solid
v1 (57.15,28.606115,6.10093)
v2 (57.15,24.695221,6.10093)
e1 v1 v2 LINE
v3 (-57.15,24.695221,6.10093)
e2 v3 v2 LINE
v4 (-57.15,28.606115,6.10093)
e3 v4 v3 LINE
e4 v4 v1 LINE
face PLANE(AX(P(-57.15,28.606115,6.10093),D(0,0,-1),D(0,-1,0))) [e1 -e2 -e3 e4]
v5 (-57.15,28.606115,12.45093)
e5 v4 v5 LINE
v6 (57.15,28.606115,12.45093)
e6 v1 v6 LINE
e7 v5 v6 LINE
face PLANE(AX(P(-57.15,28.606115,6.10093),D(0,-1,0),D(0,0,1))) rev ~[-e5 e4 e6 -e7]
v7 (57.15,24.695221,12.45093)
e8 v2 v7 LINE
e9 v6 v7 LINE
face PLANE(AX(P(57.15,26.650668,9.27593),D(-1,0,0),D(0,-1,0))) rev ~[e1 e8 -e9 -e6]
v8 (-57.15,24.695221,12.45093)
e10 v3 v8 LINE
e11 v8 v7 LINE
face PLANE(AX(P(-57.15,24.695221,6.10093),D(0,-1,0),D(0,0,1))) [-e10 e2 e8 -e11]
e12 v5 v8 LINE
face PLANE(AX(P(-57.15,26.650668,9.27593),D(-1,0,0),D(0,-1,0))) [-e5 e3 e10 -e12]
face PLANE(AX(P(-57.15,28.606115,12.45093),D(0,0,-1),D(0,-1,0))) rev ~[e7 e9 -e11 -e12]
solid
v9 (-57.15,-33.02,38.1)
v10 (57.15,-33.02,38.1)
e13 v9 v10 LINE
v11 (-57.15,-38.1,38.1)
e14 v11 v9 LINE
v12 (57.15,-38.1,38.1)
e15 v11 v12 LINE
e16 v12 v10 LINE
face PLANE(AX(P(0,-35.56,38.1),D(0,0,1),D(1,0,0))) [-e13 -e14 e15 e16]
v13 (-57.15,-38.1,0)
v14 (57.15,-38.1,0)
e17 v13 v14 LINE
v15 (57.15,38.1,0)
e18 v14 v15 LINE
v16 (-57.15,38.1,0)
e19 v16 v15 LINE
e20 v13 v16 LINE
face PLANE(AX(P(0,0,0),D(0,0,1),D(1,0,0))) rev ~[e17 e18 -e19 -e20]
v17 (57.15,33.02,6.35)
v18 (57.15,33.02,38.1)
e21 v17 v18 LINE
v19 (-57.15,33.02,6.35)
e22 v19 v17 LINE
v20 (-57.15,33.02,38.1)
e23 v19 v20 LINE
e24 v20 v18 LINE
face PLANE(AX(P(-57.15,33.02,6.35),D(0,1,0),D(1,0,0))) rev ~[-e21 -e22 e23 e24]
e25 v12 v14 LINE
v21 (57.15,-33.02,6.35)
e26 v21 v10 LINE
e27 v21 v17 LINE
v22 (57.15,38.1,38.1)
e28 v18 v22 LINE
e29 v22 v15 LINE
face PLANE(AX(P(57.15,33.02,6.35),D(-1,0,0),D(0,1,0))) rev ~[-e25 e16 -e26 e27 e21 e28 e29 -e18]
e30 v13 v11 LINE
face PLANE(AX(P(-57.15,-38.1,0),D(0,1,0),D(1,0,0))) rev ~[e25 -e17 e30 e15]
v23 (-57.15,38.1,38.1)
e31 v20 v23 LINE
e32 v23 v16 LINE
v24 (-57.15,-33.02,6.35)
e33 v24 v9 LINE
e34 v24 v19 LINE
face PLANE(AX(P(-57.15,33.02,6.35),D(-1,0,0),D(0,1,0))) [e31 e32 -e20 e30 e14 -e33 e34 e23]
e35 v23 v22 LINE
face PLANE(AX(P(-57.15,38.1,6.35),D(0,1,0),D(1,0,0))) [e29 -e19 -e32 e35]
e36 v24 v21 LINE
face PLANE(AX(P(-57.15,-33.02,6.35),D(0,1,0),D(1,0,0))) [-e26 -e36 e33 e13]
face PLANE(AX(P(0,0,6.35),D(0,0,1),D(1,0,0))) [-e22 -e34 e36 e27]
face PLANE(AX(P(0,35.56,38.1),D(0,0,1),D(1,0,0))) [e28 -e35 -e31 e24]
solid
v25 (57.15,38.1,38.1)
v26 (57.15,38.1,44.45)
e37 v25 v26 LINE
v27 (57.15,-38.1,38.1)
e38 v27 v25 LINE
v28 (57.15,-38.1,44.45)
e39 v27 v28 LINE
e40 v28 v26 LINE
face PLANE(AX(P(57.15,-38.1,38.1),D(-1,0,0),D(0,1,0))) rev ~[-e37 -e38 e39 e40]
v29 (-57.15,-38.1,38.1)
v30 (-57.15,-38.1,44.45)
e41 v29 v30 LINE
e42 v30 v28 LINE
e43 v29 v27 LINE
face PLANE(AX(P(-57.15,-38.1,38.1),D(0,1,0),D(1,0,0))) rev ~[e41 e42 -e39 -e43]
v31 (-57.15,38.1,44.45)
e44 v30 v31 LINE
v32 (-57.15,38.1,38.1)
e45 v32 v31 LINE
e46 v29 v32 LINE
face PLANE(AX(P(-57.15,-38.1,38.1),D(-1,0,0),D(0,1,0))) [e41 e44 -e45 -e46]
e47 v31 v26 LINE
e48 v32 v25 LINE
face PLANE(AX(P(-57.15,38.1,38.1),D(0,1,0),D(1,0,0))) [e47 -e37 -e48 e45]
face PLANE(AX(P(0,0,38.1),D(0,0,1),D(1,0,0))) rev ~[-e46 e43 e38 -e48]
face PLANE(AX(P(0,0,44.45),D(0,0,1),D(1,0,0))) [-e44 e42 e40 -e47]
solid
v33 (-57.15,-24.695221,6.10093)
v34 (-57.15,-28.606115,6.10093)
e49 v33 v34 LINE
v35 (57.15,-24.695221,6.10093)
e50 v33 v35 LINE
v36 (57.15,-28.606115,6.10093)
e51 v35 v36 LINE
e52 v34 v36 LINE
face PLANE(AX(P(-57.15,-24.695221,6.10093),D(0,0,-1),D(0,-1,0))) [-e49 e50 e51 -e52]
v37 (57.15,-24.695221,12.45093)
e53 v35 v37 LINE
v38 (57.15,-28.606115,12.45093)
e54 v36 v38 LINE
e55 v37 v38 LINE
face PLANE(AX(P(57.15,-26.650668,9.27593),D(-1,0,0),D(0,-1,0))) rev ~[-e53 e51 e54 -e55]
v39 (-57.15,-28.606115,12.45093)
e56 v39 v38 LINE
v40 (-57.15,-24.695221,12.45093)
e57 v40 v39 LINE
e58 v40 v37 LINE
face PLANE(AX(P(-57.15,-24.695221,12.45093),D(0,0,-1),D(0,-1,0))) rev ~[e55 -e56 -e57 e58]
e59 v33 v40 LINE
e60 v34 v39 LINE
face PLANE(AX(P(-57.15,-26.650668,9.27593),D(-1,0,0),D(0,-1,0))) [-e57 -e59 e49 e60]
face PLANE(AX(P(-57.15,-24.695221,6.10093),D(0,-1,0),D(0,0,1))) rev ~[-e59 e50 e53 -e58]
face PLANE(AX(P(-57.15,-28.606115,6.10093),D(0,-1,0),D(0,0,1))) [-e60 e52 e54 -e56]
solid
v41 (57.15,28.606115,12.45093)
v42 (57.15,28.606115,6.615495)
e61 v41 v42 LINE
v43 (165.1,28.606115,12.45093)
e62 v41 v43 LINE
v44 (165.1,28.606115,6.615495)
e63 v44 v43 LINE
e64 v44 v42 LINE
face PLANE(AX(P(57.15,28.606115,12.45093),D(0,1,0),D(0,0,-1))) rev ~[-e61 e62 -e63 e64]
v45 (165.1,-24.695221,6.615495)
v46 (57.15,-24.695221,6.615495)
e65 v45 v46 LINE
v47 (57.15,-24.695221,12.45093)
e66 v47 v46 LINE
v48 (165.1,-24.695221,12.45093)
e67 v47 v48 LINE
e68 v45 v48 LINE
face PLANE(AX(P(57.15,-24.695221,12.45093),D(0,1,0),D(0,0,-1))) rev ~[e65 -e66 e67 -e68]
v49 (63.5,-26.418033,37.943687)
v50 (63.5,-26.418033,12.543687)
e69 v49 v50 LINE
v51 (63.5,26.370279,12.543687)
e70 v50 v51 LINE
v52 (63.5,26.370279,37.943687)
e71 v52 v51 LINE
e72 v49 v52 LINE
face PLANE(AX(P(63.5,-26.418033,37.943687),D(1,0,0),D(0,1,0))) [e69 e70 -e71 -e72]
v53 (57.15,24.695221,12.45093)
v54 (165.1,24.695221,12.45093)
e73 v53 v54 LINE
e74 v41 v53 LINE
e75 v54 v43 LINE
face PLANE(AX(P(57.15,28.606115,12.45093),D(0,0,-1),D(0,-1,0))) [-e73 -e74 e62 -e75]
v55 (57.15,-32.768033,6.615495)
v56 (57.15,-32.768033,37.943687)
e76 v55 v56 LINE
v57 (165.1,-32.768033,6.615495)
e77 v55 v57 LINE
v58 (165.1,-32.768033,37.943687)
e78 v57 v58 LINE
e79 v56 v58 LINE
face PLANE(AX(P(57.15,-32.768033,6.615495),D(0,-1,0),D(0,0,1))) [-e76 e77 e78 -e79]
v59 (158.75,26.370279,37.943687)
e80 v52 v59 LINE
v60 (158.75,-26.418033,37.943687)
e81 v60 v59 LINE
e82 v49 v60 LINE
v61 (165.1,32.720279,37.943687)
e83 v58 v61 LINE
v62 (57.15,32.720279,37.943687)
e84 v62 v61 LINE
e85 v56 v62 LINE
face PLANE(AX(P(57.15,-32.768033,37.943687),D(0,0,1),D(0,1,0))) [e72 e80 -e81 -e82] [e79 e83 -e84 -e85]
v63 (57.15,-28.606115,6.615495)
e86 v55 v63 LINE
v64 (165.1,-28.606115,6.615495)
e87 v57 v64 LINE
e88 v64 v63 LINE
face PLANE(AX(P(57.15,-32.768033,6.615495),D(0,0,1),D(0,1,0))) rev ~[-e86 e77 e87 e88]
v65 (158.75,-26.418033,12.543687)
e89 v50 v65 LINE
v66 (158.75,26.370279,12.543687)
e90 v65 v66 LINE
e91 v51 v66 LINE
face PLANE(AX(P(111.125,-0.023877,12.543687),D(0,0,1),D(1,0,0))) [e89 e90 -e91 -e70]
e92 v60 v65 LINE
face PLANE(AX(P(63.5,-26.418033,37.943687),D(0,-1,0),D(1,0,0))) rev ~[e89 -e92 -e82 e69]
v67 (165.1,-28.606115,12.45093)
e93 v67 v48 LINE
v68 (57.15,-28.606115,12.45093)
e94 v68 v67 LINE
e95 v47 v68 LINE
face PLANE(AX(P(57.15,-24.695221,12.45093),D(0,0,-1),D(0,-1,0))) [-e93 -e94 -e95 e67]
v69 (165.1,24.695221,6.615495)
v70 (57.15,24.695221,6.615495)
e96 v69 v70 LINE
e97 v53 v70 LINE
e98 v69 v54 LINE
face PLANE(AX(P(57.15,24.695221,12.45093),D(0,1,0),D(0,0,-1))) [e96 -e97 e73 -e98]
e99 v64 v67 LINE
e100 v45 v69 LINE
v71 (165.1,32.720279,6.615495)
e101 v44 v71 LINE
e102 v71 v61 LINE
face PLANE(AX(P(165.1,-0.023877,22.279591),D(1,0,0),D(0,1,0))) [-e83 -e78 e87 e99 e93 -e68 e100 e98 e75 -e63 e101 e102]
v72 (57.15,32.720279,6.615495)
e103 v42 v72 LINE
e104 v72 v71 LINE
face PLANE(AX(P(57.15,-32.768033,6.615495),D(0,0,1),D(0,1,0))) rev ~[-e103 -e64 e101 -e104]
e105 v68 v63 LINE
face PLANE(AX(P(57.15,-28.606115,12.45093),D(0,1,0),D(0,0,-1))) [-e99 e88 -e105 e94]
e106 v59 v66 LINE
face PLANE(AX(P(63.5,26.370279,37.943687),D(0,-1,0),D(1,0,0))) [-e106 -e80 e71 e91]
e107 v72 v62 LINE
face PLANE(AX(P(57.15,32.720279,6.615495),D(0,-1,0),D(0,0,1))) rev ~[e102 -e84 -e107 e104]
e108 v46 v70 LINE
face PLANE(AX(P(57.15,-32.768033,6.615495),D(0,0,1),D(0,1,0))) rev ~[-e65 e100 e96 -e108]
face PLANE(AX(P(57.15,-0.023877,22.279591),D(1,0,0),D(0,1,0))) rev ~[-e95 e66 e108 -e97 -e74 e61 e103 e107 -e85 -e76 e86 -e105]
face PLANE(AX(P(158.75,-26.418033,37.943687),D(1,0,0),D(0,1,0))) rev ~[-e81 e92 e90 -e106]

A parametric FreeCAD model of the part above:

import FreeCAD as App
import Part
import Sketcher
Q = App.Units.Quantity

doc = App.newDocument("Part")
body = doc.addObject("PartDesign::Body", "Body")

sketch1 = body.newObject("Sketcher::SketchObject", "Sketch")
sketch1.AttachmentSupport = (doc.getObject("XY_Plane"), [""])
sketch1.MapMode = "FlatFace"
sketch1.addGeometry([
    Part.LineSegment(App.Vector(-57.15, 38.1, 0), App.Vector(-57.15, -38.1, 0)),
    Part.LineSegment(App.Vector(-57.15, -38.1, 0), App.Vector(57.15, -38.1, 0)),
    Part.LineSegment(App.Vector(57.15, -38.1, 0), App.Vector(57.15, 38.1, 0)),
    Part.LineSegment(App.Vector(57.15, 38.1, 0), App.Vector(-57.15, 38.1, 0)),
], False)
sketch1.addConstraint([
    Sketcher.Constraint("Coincident", 0, 2, 1, 1),
    Sketcher.Constraint("Coincident", 1, 2, 2, 1),
    Sketcher.Constraint("Coincident", 2, 2, 3, 1),
    Sketcher.Constraint("Coincident", 3, 2, 0, 1),
    Sketcher.Constraint("Vertical", 0),
    Sketcher.Constraint("Horizontal", 1),
    Sketcher.Constraint("Vertical", 2),
    Sketcher.Constraint("Horizontal", 3),
    Sketcher.Constraint("Symmetric", 0, 2, 2, 2, -1, 1),
    Sketcher.Constraint("DistanceY", 0, 2, 0, 1, Q("3 in")),
    Sketcher.Constraint("DistanceX", 1, 1, 1, 2, Q("4.5 in")),
])
pad1 = body.newObject("PartDesign::Pad", "Pad")
pad1.Profile = sketch1
pad1.Length = Q("0.25 in")

sketch2 = body.newObject("Sketcher::SketchObject", "Sketch001")
sketch2.AttachmentSupport = (doc.getObject("XY_Plane"), [""])
sketch2.MapMode = "FlatFace"
sketch2.AttachmentOffset = App.Placement(App.Vector(0, 0, 0.25 * 25.4), App.Rotation())
sketch2.addGeometry([
    Part.LineSegment(App.Vector(-57.15, 38.1, 0), App.Vector(-57.15, 33.02, 0)),
    Part.LineSegment(App.Vector(-57.15, 33.02, 0), App.Vector(57.15, 33.02, 0)),
    Part.LineSegment(App.Vector(57.15, 33.02, 0), App.Vector(57.15, 38.1, 0)),
    Part.LineSegment(App.Vector(57.15, 38.1, 0), App.Vector(-57.15, 38.1, 0)),
    Part.LineSegment(App.Vector(-57.15, -33.02, 0), App.Vector(-57.15, -38.1, 0)),
    Part.LineSegment(App.Vector(-57.15, -38.1, 0), App.Vector(57.15, -38.1, 0)),
    Part.LineSegment(App.Vector(57.15, -38.1, 0), App.Vector(57.15, -33.02, 0)),
    Part.LineSegment(App.Vector(57.15, -33.02, 0), App.Vector(-57.15, -33.02, 0)),
], False)
sketch2.addConstraint([
    Sketcher.Constraint("Coincident", 0, 2, 1, 1),
    Sketcher.Constraint("Coincident", 1, 2, 2, 1),
    Sketcher.Constraint("Coincident", 2, 2, 3, 1),
    Sketcher.Constraint("Coincident", 3, 2, 0, 1),
    Sketcher.Constraint("Coincident", 4, 2, 5, 1),
    Sketcher.Constraint("Coincident", 5, 2, 6, 1),
    Sketcher.Constraint("Coincident", 6, 2, 7, 1),
    Sketcher.Constraint("Coincident", 7, 2, 4, 1),
    Sketcher.Constraint("Vertical", 0),
    Sketcher.Constraint("Horizontal", 1),
    Sketcher.Constraint("Vertical", 2),
    Sketcher.Constraint("Horizontal", 3),
    Sketcher.Constraint("Vertical", 4),
    Sketcher.Constraint("Horizontal", 5),
    Sketcher.Constraint("Vertical", 6),
    Sketcher.Constraint("Horizontal", 7),
    Sketcher.Constraint("Symmetric", 2, 2, 4, 2, -1, 1),
    Sketcher.Constraint("Symmetric", 0, 2, 6, 2, -1, 1),
    Sketcher.Constraint("Vertical", 3, 2, 4, 2),
    Sketcher.Constraint("DistanceX", 1, 1, 1, 2, Q("4.5 in")),
    Sketcher.Constraint("DistanceY", 0, 2, 0, 1, Q("0.2 in")),
    Sketcher.Constraint("DistanceY", 4, 2, 3, 2, Q("3 in")),
])
pad2 = body.newObject("PartDesign::Pad", "Pad001")
pad2.Profile = sketch2
pad2.Length = Q("1.25 in")
body2 = doc.addObject("PartDesign::Body", "Body001")
body2.AllowCompound = True

sketch3 = body2.newObject("Sketcher::SketchObject", "Sketch002")
sketch3.AttachmentSupport = (doc.getObject("YZ_Plane001"), [""])
sketch3.MapMode = "FlatFace"
sketch3.AttachmentOffset = App.Placement(App.Vector(0, 0, -2.25 * 25.4), App.Rotation())
sketch3.addGeometry([
    Part.LineSegment(App.Vector(28.606115, 12.45093, 0), App.Vector(28.606115, 6.10093, 0)),
    Part.LineSegment(App.Vector(28.606115, 6.10093, 0), App.Vector(24.695221, 6.10093, 0)),
    Part.LineSegment(App.Vector(24.695221, 6.10093, 0), App.Vector(24.695221, 12.45093, 0)),
    Part.LineSegment(App.Vector(24.695221, 12.45093, 0), App.Vector(28.606115, 12.45093, 0)),
    Part.LineSegment(App.Vector(-24.695221, 12.45093, 0), App.Vector(-24.695221, 6.10093, 0)),
    Part.LineSegment(App.Vector(-24.695221, 6.10093, 0), App.Vector(-28.606115, 6.10093, 0)),
    Part.LineSegment(App.Vector(-28.606115, 6.10093, 0), App.Vector(-28.606115, 12.45093, 0)),
    Part.LineSegment(App.Vector(-28.606115, 12.45093, 0), App.Vector(-24.695221, 12.45093, 0)),
], False)
sketch3.addConstraint([
    Sketcher.Constraint("Coincident", 0, 2, 1, 1),
    Sketcher.Constraint("Coincident", 1, 2, 2, 1),
    Sketcher.Constraint("Coincident", 2, 2, 3, 1),
    Sketcher.Constraint("Coincident", 3, 2, 0, 1),
    Sketcher.Constraint("Coincident", 4, 2, 5, 1),
    Sketcher.Constraint("Coincident", 5, 2, 6, 1),
    Sketcher.Constraint("Coincident", 6, 2, 7, 1),
    Sketcher.Constraint("Coincident", 7, 2, 4, 1),
    Sketcher.Constraint("Vertical", 0),
    Sketcher.Constraint("Horizontal", 1),
    Sketcher.Constraint("Vertical", 2),
    Sketcher.Constraint("Horizontal", 3),
    Sketcher.Constraint("Vertical", 4),
    Sketcher.Constraint("Horizontal", 5),
    Sketcher.Constraint("Vertical", 6),
    Sketcher.Constraint("Horizontal", 7),
    Sketcher.Constraint("Symmetric", 1, 2, 4, 2, -2),
    Sketcher.Constraint("Symmetric", 3, 2, 6, 2, -2),
    Sketcher.Constraint("DistanceY", 0, 2, 0, 1, Q("0.25 in")),
    Sketcher.Constraint("DistanceX", 1, 2, 1, 1, Q("3.910894 mm")),
    Sketcher.Constraint("DistanceY", -1, 1, 0, 2, Q("6.10093 mm")),
    Sketcher.Constraint("DistanceX", -1, 1, 1, 2, Q("24.695221 mm")),
])
pad3 = body2.newObject("PartDesign::Pad", "Pad002")
pad3.Profile = sketch3
pad3.Length = Q("4.5 in")
body3 = doc.addObject("PartDesign::Body", "Body002")

sketch4 = body3.newObject("Sketcher::SketchObject", "Sketch003")
sketch4.AttachmentSupport = (doc.getObject("YZ_Plane002"), [""])
sketch4.MapMode = "FlatFace"
sketch4.AttachmentOffset = App.Placement(App.Vector(0, 0, 2.25 * 25.4), App.Rotation())
sketch4.addGeometry([
    Part.LineSegment(App.Vector(-32.768033, 37.943687, 0), App.Vector(-32.768033, 6.615495, 0)),
    Part.LineSegment(App.Vector(-32.768033, 6.615495, 0), App.Vector(32.720279, 6.615495, 0)),
    Part.LineSegment(App.Vector(32.720279, 6.615495, 0), App.Vector(32.720279, 37.943687, 0)),
    Part.LineSegment(App.Vector(32.720279, 37.943687, 0), App.Vector(-32.768033, 37.943687, 0)),
], False)
sketch4.addConstraint([
    Sketcher.Constraint("Coincident", 0, 2, 1, 1),
    Sketcher.Constraint("Coincident", 1, 2, 2, 1),
    Sketcher.Constraint("Coincident", 2, 2, 3, 1),
    Sketcher.Constraint("Coincident", 3, 2, 0, 1),
    Sketcher.Constraint("Vertical", 0),
    Sketcher.Constraint("Horizontal", 1),
    Sketcher.Constraint("Vertical", 2),
    Sketcher.Constraint("Horizontal", 3),
    Sketcher.Constraint("DistanceX", -1, 1, 1, 2, Q("1.2882 in")),
    Sketcher.Constraint("DistanceY", 0, 2, 0, 1, Q("31.328192 mm")),
    Sketcher.Constraint("DistanceX", 1, 1, 1, 2, Q("65.488312 mm")),
    Sketcher.Constraint("DistanceY", -1, 1, 0, 2, Q("6.615495 mm")),
])
pad4 = body3.newObject("PartDesign::Pad", "Pad003")
pad4.Profile = sketch4
pad4.Length = Q("4.25 in")

sketch5 = body3.newObject("Sketcher::SketchObject", "Sketch004")
sketch5.AttachmentSupport = (doc.getObject("YZ_Plane002"), [""])
sketch5.MapMode = "FlatFace"
sketch5.AttachmentOffset = App.Placement(App.Vector(0, 0, 2.25 * 25.4), App.Rotation())
sketch5.addGeometry([
    Part.LineSegment(App.Vector(-24.695221, 6.10093, 0), App.Vector(-24.695221, 12.45093, 0)),
    Part.LineSegment(App.Vector(-24.695221, 12.45093, 0), App.Vector(-28.606115, 12.45093, 0)),
    Part.LineSegment(App.Vector(-28.606115, 12.45093, 0), App.Vector(-28.606115, 6.10093, 0)),
    Part.LineSegment(App.Vector(-28.606115, 6.10093, 0), App.Vector(-24.695221, 6.10093, 0)),
    Part.LineSegment(App.Vector(28.606115, 6.10093, 0), App.Vector(28.606115, 12.45093, 0)),
    Part.LineSegment(App.Vector(28.606115, 12.45093, 0), App.Vector(24.695221, 12.45093, 0)),
    Part.LineSegment(App.Vector(24.695221, 12.45093, 0), App.Vector(24.695221, 6.10093, 0)),
    Part.LineSegment(App.Vector(24.695221, 6.10093, 0), App.Vector(28.606115, 6.10093, 0)),
], False)
sketch5.addConstraint([
    Sketcher.Constraint("Coincident", 0, 2, 1, 1),
    Sketcher.Constraint("Coincident", 1, 2, 2, 1),
    Sketcher.Constraint("Coincident", 2, 2, 3, 1),
    Sketcher.Constraint("Coincident", 3, 2, 0, 1),
    Sketcher.Constraint("Coincident", 4, 2, 5, 1),
    Sketcher.Constraint("Coincident", 5, 2, 6, 1),
    Sketcher.Constraint("Coincident", 6, 2, 7, 1),
    Sketcher.Constraint("Coincident", 7, 2, 4, 1),
    Sketcher.Constraint("Vertical", 0),
    Sketcher.Constraint("Horizontal", 1),
    Sketcher.Constraint("Vertical", 2),
    Sketcher.Constraint("Horizontal", 3),
    Sketcher.Constraint("Vertical", 4),
    Sketcher.Constraint("Horizontal", 5),
    Sketcher.Constraint("Vertical", 6),
    Sketcher.Constraint("Horizontal", 7),
    Sketcher.Constraint("Symmetric", 1, 2, 4, 2, -2),
    Sketcher.Constraint("Symmetric", 3, 2, 6, 2, -2),
    Sketcher.Constraint("DistanceY", 0, 1, 0, 2, Q("0.25 in")),
    Sketcher.Constraint("DistanceX", 1, 2, 1, 1, Q("3.910894 mm")),
    Sketcher.Constraint("DistanceX", 0, 2, -1, 1, Q("24.695221 mm")),
    Sketcher.Constraint("DistanceY", -1, 1, 0, 2, Q("12.45093 mm")),
])
pocket1 = body3.newObject("PartDesign::Pocket", "Pocket")
pocket1.Profile = sketch5
pocket1.Length = Q("5.5 in")
pocket1.Reversed = True

sketch6 = body3.newObject("Sketcher::SketchObject", "Sketch005")
sketch6.AttachmentSupport = (doc.getObject("XY_Plane002"), [""])
sketch6.MapMode = "FlatFace"
sketch6.AttachmentOffset = App.Placement(App.Vector(0, 0, 37.943687), App.Rotation())
sketch6.addGeometry([
    Part.LineSegment(App.Vector(63.5, 26.370279, 0), App.Vector(63.5, -26.418033, 0)),
    Part.LineSegment(App.Vector(63.5, -26.418033, 0), App.Vector(158.75, -26.418033, 0)),
    Part.LineSegment(App.Vector(158.75, -26.418033, 0), App.Vector(158.75, 26.370279, 0)),
    Part.LineSegment(App.Vector(158.75, 26.370279, 0), App.Vector(63.5, 26.370279, 0)),
], False)
sketch6.addConstraint([
    Sketcher.Constraint("Coincident", 0, 2, 1, 1),
    Sketcher.Constraint("Coincident", 1, 2, 2, 1),
    Sketcher.Constraint("Coincident", 2, 2, 3, 1),
    Sketcher.Constraint("Coincident", 3, 2, 0, 1),
    Sketcher.Constraint("Vertical", 0),
    Sketcher.Constraint("Horizontal", 1),
    Sketcher.Constraint("Vertical", 2),
    Sketcher.Constraint("Horizontal", 3),
    Sketcher.Constraint("DistanceX", 1, 1, 1, 2, Q("3.75 in")),
    Sketcher.Constraint("DistanceX", -1, 1, 0, 2, Q("2.5 in")),
    Sketcher.Constraint("DistanceY", -1, 1, 2, 2, Q("1.0382 in")),
    Sketcher.Constraint("DistanceY", 0, 2, 0, 1, Q("52.788312 mm")),
])
pocket2 = body3.newObject("PartDesign::Pocket", "Pocket001")
pocket2.Profile = sketch6
pocket2.Length = Q("1 in")
body4 = doc.addObject("PartDesign::Body", "Body003")

sketch7 = body4.newObject("Sketcher::SketchObject", "Sketch006")
sketch7.AttachmentSupport = (doc.getObject("XY_Plane003"), [""])
sketch7.MapMode = "FlatFace"
sketch7.AttachmentOffset = App.Placement(App.Vector(0, 0, 1.5 * 25.4), App.Rotation())
sketch7.addGeometry([
    Part.LineSegment(App.Vector(-57.15, 38.1, 0), App.Vector(-57.15, -38.1, 0)),
    Part.LineSegment(App.Vector(-57.15, -38.1, 0), App.Vector(57.15, -38.1, 0)),
    Part.LineSegment(App.Vector(57.15, -38.1, 0), App.Vector(57.15, 38.1, 0)),
    Part.LineSegment(App.Vector(57.15, 38.1, 0), App.Vector(-57.15, 38.1, 0)),
], False)
sketch7.addConstraint([
    Sketcher.Constraint("Coincident", 0, 2, 1, 1),
    Sketcher.Constraint("Coincident", 1, 2, 2, 1),
    Sketcher.Constraint("Coincident", 2, 2, 3, 1),
    Sketcher.Constraint("Coincident", 3, 2, 0, 1),
    Sketcher.Constraint("Vertical", 0),
    Sketcher.Constraint("Horizontal", 1),
    Sketcher.Constraint("Vertical", 2),
    Sketcher.Constraint("Horizontal", 3),
    Sketcher.Constraint("Symmetric", 0, 2, 2, 2, -1, 1),
    Sketcher.Constraint("DistanceY", 0, 2, 0, 1, Q("3 in")),
    Sketcher.Constraint("DistanceX", 1, 1, 1, 2, Q("4.5 in")),
])
pad5 = body4.newObject("PartDesign::Pad", "Pad004")
pad5.Profile = sketch7
pad5.Length = Q("0.25 in")

doc.recompute()
